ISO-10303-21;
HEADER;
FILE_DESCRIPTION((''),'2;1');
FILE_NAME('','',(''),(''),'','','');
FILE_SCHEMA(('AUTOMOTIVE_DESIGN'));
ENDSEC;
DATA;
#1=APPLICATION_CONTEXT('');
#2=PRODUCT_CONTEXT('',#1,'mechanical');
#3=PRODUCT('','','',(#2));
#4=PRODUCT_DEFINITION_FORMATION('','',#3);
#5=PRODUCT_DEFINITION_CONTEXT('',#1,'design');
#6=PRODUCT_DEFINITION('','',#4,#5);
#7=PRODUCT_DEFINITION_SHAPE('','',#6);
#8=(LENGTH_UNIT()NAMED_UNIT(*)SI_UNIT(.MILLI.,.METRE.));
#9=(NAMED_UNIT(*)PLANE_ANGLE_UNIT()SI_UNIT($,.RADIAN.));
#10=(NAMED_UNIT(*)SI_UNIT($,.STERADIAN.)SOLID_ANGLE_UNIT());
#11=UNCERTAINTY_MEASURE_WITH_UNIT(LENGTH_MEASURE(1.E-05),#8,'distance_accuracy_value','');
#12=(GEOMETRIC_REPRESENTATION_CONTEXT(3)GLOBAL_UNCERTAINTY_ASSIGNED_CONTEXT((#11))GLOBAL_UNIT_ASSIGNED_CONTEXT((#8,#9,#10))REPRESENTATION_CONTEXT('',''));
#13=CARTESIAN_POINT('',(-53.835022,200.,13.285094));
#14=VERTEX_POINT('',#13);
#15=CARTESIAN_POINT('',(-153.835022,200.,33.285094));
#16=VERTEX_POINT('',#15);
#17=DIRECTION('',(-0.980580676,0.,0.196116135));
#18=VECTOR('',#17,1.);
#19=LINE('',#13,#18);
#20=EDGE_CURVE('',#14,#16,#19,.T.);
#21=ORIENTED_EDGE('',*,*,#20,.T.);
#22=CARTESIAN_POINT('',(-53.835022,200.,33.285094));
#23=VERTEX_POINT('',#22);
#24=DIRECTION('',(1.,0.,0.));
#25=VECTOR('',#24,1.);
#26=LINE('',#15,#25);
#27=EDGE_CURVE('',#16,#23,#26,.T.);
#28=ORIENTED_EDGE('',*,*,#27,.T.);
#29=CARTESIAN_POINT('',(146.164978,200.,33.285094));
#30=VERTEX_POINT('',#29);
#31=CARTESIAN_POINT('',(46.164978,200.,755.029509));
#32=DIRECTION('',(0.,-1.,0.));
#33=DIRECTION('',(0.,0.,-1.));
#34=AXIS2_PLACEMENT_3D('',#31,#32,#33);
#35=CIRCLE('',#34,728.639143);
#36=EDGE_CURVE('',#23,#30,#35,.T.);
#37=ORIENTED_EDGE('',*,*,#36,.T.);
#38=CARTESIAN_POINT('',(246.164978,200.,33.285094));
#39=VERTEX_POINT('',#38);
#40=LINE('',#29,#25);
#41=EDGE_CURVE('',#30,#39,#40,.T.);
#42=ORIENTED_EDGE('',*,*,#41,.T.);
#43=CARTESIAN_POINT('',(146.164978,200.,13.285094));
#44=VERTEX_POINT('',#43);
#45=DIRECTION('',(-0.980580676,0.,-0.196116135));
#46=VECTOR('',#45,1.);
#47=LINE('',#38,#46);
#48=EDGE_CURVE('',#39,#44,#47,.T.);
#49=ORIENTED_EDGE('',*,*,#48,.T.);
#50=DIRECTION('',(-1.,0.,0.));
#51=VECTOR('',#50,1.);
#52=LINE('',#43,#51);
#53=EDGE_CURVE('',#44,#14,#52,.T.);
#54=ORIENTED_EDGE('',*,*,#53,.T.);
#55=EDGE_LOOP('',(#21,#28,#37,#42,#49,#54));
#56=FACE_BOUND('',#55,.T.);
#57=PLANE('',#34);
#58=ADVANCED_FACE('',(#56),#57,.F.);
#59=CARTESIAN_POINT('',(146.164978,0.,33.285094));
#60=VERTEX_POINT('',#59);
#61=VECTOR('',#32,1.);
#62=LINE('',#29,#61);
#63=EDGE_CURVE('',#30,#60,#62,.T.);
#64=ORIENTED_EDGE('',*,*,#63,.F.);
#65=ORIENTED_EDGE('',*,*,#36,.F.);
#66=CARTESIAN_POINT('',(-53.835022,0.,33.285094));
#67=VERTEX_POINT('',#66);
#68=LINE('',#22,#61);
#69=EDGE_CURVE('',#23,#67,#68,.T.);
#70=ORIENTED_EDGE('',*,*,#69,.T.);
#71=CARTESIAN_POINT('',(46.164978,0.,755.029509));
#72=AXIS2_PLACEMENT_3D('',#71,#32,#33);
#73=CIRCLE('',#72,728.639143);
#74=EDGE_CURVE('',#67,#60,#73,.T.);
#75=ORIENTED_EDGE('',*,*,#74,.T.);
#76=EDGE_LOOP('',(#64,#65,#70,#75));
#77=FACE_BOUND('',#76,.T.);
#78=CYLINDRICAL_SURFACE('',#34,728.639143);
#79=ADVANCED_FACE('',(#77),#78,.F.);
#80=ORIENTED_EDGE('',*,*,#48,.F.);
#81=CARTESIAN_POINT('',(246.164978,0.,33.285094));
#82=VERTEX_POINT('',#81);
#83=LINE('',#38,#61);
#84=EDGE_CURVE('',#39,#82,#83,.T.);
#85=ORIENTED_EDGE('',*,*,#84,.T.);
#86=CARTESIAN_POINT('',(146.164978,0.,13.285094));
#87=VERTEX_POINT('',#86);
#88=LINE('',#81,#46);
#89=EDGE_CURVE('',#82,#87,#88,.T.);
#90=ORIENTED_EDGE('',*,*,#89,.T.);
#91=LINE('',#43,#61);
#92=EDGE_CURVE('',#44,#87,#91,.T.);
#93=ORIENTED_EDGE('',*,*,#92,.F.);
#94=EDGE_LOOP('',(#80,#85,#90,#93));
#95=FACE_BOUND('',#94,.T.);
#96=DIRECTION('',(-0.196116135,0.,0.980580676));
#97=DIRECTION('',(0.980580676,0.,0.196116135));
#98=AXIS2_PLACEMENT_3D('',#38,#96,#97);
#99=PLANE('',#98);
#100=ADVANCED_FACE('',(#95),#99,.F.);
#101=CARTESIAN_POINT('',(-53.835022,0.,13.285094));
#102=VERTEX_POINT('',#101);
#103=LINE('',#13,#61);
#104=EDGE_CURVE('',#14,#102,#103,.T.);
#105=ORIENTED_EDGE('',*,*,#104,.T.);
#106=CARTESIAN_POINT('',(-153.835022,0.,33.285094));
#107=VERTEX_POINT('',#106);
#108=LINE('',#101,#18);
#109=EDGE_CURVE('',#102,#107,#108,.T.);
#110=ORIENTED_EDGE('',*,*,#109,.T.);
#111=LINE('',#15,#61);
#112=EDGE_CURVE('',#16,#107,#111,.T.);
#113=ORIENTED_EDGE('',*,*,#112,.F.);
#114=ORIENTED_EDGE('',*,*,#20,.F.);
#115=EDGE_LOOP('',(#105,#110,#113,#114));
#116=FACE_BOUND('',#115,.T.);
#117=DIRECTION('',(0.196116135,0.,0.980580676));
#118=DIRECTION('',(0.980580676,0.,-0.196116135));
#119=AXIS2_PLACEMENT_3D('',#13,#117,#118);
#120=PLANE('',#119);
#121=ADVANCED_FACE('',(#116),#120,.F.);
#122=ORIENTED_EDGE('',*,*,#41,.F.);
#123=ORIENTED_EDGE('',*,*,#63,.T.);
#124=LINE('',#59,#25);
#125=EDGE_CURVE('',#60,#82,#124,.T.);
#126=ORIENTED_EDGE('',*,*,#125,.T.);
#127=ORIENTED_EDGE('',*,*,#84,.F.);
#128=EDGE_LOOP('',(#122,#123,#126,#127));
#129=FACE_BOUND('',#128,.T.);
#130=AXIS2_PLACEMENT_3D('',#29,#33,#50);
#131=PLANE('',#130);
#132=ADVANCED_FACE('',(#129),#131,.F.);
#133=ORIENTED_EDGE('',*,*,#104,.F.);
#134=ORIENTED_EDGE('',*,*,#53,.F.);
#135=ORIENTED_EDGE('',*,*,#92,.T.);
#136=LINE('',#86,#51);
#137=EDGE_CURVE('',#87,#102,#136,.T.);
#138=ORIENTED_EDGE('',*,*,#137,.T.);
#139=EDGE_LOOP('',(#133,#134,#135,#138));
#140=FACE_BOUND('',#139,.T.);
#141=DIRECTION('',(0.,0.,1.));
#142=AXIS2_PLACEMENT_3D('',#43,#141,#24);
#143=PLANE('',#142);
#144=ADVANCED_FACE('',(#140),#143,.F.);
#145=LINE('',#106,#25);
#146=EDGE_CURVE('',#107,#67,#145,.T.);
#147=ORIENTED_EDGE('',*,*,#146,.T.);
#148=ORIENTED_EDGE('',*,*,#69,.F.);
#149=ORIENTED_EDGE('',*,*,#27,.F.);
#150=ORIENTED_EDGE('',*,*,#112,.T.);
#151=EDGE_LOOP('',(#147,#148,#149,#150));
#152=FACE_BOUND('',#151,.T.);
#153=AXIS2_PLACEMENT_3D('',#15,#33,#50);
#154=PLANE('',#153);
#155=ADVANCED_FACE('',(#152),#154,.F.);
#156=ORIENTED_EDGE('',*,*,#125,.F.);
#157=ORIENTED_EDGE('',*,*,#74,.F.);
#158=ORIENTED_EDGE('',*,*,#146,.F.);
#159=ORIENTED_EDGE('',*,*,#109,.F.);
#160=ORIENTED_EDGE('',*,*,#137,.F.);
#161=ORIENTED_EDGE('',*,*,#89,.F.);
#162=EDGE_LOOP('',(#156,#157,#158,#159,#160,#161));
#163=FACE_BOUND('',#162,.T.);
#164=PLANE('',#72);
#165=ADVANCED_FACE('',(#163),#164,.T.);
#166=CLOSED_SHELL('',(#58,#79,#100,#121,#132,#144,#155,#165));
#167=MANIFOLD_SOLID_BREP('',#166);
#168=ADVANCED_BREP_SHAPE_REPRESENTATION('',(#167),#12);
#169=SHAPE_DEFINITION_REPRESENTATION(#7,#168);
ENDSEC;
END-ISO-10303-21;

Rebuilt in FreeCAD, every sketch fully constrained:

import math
import FreeCAD as App
import Part
import Sketcher
Q = App.Units.Quantity

doc = App.newDocument("Part")
params = doc.addObject("Spreadsheet::Sheet", "Params")
for row, (alias, value) in enumerate([
    ("sketch1_width", "100 mm"),
    ("sketch1_width2", "200 mm"),
    ("pad1_length", "200 mm"),
], start=1):
    params.set(f"A{row}", alias)
    params.set(f"B{row}", "=" + value)
    params.setAlias(f"B{row}", alias)

body = doc.addObject("PartDesign::Body", "Body")

sketch1 = doc.addObject("Sketcher::SketchObject", "Sketch")
body.addObject(sketch1)
sketch1.AttachmentSupport = (doc.XZ_Plane, [""])
sketch1.MapMode = "FlatFace"
sketch1.addGeometry([
    Part.LineSegment(App.Vector(-154, 33, 0), App.Vector(-54, 33, 0)),
    Part.ArcOfCircle(Part.Circle(App.Vector(46, 755, 0), App.Vector(0, 0, 1), 729), math.radians(-97.89), math.radians(-82.11)),
    Part.LineSegment(App.Vector(146, 33, 0), App.Vector(246, 33, 0)),
    Part.LineSegment(App.Vector(246, 33, 0), App.Vector(146, 13, 0)),
    Part.LineSegment(App.Vector(146, 13, 0), App.Vector(-54, 13, 0)),
    Part.LineSegment(App.Vector(-54, 13, 0), App.Vector(-154, 33, 0)),
], False)
sketch1.addConstraint([
    Sketcher.Constraint("Coincident", 0, 2, 1, 1),
    Sketcher.Constraint("Coincident", 1, 2, 2, 1),
    Sketcher.Constraint("Coincident", 2, 2, 3, 1),
    Sketcher.Constraint("Coincident", 3, 2, 4, 1),
    Sketcher.Constraint("Coincident", 4, 2, 5, 1),
    Sketcher.Constraint("Coincident", 5, 2, 0, 1),
    Sketcher.Constraint("Horizontal", 0),
    Sketcher.Constraint("Horizontal", 2),
    Sketcher.Constraint("Horizontal", 4),
    Sketcher.Constraint("Horizontal", 0, 2, 1, 2),
    Sketcher.Constraint("Vertical", 0, 2, 4, 2),
    Sketcher.Constraint("Equal", 0, 2),
    Sketcher.Constraint("Equal", 3, 5),
    Sketcher.Constraint("DistanceX", 0, 1, 0, 2, Q("100 mm")),
    Sketcher.Constraint("DistanceX", 4, 2, 4, 1, Q("200 mm")),
    Sketcher.Constraint("DistanceY", 3, 2, 1, 2, Q("20 mm")),
    Sketcher.Constraint("Radius", 1, Q("728.639143 mm")),
    Sketcher.Constraint("DistanceX", -1, 1, 1, 3, Q("46.164978 mm")),
    Sketcher.Constraint("DistanceY", -1, 1, 1, 3, Q("755.029509 mm")),
])
sketch1.setExpression("Constraints[13]", "Params.sketch1_width")
sketch1.setExpression("Constraints[14]", "Params.sketch1_width2")
pad1 = doc.addObject("PartDesign::Pad", "Pad")
body.addObject(pad1)
pad1.Profile = sketch1
pad1.setExpression("Length", "Params.pad1_length")
pad1.Reversed = True

doc.recompute()
